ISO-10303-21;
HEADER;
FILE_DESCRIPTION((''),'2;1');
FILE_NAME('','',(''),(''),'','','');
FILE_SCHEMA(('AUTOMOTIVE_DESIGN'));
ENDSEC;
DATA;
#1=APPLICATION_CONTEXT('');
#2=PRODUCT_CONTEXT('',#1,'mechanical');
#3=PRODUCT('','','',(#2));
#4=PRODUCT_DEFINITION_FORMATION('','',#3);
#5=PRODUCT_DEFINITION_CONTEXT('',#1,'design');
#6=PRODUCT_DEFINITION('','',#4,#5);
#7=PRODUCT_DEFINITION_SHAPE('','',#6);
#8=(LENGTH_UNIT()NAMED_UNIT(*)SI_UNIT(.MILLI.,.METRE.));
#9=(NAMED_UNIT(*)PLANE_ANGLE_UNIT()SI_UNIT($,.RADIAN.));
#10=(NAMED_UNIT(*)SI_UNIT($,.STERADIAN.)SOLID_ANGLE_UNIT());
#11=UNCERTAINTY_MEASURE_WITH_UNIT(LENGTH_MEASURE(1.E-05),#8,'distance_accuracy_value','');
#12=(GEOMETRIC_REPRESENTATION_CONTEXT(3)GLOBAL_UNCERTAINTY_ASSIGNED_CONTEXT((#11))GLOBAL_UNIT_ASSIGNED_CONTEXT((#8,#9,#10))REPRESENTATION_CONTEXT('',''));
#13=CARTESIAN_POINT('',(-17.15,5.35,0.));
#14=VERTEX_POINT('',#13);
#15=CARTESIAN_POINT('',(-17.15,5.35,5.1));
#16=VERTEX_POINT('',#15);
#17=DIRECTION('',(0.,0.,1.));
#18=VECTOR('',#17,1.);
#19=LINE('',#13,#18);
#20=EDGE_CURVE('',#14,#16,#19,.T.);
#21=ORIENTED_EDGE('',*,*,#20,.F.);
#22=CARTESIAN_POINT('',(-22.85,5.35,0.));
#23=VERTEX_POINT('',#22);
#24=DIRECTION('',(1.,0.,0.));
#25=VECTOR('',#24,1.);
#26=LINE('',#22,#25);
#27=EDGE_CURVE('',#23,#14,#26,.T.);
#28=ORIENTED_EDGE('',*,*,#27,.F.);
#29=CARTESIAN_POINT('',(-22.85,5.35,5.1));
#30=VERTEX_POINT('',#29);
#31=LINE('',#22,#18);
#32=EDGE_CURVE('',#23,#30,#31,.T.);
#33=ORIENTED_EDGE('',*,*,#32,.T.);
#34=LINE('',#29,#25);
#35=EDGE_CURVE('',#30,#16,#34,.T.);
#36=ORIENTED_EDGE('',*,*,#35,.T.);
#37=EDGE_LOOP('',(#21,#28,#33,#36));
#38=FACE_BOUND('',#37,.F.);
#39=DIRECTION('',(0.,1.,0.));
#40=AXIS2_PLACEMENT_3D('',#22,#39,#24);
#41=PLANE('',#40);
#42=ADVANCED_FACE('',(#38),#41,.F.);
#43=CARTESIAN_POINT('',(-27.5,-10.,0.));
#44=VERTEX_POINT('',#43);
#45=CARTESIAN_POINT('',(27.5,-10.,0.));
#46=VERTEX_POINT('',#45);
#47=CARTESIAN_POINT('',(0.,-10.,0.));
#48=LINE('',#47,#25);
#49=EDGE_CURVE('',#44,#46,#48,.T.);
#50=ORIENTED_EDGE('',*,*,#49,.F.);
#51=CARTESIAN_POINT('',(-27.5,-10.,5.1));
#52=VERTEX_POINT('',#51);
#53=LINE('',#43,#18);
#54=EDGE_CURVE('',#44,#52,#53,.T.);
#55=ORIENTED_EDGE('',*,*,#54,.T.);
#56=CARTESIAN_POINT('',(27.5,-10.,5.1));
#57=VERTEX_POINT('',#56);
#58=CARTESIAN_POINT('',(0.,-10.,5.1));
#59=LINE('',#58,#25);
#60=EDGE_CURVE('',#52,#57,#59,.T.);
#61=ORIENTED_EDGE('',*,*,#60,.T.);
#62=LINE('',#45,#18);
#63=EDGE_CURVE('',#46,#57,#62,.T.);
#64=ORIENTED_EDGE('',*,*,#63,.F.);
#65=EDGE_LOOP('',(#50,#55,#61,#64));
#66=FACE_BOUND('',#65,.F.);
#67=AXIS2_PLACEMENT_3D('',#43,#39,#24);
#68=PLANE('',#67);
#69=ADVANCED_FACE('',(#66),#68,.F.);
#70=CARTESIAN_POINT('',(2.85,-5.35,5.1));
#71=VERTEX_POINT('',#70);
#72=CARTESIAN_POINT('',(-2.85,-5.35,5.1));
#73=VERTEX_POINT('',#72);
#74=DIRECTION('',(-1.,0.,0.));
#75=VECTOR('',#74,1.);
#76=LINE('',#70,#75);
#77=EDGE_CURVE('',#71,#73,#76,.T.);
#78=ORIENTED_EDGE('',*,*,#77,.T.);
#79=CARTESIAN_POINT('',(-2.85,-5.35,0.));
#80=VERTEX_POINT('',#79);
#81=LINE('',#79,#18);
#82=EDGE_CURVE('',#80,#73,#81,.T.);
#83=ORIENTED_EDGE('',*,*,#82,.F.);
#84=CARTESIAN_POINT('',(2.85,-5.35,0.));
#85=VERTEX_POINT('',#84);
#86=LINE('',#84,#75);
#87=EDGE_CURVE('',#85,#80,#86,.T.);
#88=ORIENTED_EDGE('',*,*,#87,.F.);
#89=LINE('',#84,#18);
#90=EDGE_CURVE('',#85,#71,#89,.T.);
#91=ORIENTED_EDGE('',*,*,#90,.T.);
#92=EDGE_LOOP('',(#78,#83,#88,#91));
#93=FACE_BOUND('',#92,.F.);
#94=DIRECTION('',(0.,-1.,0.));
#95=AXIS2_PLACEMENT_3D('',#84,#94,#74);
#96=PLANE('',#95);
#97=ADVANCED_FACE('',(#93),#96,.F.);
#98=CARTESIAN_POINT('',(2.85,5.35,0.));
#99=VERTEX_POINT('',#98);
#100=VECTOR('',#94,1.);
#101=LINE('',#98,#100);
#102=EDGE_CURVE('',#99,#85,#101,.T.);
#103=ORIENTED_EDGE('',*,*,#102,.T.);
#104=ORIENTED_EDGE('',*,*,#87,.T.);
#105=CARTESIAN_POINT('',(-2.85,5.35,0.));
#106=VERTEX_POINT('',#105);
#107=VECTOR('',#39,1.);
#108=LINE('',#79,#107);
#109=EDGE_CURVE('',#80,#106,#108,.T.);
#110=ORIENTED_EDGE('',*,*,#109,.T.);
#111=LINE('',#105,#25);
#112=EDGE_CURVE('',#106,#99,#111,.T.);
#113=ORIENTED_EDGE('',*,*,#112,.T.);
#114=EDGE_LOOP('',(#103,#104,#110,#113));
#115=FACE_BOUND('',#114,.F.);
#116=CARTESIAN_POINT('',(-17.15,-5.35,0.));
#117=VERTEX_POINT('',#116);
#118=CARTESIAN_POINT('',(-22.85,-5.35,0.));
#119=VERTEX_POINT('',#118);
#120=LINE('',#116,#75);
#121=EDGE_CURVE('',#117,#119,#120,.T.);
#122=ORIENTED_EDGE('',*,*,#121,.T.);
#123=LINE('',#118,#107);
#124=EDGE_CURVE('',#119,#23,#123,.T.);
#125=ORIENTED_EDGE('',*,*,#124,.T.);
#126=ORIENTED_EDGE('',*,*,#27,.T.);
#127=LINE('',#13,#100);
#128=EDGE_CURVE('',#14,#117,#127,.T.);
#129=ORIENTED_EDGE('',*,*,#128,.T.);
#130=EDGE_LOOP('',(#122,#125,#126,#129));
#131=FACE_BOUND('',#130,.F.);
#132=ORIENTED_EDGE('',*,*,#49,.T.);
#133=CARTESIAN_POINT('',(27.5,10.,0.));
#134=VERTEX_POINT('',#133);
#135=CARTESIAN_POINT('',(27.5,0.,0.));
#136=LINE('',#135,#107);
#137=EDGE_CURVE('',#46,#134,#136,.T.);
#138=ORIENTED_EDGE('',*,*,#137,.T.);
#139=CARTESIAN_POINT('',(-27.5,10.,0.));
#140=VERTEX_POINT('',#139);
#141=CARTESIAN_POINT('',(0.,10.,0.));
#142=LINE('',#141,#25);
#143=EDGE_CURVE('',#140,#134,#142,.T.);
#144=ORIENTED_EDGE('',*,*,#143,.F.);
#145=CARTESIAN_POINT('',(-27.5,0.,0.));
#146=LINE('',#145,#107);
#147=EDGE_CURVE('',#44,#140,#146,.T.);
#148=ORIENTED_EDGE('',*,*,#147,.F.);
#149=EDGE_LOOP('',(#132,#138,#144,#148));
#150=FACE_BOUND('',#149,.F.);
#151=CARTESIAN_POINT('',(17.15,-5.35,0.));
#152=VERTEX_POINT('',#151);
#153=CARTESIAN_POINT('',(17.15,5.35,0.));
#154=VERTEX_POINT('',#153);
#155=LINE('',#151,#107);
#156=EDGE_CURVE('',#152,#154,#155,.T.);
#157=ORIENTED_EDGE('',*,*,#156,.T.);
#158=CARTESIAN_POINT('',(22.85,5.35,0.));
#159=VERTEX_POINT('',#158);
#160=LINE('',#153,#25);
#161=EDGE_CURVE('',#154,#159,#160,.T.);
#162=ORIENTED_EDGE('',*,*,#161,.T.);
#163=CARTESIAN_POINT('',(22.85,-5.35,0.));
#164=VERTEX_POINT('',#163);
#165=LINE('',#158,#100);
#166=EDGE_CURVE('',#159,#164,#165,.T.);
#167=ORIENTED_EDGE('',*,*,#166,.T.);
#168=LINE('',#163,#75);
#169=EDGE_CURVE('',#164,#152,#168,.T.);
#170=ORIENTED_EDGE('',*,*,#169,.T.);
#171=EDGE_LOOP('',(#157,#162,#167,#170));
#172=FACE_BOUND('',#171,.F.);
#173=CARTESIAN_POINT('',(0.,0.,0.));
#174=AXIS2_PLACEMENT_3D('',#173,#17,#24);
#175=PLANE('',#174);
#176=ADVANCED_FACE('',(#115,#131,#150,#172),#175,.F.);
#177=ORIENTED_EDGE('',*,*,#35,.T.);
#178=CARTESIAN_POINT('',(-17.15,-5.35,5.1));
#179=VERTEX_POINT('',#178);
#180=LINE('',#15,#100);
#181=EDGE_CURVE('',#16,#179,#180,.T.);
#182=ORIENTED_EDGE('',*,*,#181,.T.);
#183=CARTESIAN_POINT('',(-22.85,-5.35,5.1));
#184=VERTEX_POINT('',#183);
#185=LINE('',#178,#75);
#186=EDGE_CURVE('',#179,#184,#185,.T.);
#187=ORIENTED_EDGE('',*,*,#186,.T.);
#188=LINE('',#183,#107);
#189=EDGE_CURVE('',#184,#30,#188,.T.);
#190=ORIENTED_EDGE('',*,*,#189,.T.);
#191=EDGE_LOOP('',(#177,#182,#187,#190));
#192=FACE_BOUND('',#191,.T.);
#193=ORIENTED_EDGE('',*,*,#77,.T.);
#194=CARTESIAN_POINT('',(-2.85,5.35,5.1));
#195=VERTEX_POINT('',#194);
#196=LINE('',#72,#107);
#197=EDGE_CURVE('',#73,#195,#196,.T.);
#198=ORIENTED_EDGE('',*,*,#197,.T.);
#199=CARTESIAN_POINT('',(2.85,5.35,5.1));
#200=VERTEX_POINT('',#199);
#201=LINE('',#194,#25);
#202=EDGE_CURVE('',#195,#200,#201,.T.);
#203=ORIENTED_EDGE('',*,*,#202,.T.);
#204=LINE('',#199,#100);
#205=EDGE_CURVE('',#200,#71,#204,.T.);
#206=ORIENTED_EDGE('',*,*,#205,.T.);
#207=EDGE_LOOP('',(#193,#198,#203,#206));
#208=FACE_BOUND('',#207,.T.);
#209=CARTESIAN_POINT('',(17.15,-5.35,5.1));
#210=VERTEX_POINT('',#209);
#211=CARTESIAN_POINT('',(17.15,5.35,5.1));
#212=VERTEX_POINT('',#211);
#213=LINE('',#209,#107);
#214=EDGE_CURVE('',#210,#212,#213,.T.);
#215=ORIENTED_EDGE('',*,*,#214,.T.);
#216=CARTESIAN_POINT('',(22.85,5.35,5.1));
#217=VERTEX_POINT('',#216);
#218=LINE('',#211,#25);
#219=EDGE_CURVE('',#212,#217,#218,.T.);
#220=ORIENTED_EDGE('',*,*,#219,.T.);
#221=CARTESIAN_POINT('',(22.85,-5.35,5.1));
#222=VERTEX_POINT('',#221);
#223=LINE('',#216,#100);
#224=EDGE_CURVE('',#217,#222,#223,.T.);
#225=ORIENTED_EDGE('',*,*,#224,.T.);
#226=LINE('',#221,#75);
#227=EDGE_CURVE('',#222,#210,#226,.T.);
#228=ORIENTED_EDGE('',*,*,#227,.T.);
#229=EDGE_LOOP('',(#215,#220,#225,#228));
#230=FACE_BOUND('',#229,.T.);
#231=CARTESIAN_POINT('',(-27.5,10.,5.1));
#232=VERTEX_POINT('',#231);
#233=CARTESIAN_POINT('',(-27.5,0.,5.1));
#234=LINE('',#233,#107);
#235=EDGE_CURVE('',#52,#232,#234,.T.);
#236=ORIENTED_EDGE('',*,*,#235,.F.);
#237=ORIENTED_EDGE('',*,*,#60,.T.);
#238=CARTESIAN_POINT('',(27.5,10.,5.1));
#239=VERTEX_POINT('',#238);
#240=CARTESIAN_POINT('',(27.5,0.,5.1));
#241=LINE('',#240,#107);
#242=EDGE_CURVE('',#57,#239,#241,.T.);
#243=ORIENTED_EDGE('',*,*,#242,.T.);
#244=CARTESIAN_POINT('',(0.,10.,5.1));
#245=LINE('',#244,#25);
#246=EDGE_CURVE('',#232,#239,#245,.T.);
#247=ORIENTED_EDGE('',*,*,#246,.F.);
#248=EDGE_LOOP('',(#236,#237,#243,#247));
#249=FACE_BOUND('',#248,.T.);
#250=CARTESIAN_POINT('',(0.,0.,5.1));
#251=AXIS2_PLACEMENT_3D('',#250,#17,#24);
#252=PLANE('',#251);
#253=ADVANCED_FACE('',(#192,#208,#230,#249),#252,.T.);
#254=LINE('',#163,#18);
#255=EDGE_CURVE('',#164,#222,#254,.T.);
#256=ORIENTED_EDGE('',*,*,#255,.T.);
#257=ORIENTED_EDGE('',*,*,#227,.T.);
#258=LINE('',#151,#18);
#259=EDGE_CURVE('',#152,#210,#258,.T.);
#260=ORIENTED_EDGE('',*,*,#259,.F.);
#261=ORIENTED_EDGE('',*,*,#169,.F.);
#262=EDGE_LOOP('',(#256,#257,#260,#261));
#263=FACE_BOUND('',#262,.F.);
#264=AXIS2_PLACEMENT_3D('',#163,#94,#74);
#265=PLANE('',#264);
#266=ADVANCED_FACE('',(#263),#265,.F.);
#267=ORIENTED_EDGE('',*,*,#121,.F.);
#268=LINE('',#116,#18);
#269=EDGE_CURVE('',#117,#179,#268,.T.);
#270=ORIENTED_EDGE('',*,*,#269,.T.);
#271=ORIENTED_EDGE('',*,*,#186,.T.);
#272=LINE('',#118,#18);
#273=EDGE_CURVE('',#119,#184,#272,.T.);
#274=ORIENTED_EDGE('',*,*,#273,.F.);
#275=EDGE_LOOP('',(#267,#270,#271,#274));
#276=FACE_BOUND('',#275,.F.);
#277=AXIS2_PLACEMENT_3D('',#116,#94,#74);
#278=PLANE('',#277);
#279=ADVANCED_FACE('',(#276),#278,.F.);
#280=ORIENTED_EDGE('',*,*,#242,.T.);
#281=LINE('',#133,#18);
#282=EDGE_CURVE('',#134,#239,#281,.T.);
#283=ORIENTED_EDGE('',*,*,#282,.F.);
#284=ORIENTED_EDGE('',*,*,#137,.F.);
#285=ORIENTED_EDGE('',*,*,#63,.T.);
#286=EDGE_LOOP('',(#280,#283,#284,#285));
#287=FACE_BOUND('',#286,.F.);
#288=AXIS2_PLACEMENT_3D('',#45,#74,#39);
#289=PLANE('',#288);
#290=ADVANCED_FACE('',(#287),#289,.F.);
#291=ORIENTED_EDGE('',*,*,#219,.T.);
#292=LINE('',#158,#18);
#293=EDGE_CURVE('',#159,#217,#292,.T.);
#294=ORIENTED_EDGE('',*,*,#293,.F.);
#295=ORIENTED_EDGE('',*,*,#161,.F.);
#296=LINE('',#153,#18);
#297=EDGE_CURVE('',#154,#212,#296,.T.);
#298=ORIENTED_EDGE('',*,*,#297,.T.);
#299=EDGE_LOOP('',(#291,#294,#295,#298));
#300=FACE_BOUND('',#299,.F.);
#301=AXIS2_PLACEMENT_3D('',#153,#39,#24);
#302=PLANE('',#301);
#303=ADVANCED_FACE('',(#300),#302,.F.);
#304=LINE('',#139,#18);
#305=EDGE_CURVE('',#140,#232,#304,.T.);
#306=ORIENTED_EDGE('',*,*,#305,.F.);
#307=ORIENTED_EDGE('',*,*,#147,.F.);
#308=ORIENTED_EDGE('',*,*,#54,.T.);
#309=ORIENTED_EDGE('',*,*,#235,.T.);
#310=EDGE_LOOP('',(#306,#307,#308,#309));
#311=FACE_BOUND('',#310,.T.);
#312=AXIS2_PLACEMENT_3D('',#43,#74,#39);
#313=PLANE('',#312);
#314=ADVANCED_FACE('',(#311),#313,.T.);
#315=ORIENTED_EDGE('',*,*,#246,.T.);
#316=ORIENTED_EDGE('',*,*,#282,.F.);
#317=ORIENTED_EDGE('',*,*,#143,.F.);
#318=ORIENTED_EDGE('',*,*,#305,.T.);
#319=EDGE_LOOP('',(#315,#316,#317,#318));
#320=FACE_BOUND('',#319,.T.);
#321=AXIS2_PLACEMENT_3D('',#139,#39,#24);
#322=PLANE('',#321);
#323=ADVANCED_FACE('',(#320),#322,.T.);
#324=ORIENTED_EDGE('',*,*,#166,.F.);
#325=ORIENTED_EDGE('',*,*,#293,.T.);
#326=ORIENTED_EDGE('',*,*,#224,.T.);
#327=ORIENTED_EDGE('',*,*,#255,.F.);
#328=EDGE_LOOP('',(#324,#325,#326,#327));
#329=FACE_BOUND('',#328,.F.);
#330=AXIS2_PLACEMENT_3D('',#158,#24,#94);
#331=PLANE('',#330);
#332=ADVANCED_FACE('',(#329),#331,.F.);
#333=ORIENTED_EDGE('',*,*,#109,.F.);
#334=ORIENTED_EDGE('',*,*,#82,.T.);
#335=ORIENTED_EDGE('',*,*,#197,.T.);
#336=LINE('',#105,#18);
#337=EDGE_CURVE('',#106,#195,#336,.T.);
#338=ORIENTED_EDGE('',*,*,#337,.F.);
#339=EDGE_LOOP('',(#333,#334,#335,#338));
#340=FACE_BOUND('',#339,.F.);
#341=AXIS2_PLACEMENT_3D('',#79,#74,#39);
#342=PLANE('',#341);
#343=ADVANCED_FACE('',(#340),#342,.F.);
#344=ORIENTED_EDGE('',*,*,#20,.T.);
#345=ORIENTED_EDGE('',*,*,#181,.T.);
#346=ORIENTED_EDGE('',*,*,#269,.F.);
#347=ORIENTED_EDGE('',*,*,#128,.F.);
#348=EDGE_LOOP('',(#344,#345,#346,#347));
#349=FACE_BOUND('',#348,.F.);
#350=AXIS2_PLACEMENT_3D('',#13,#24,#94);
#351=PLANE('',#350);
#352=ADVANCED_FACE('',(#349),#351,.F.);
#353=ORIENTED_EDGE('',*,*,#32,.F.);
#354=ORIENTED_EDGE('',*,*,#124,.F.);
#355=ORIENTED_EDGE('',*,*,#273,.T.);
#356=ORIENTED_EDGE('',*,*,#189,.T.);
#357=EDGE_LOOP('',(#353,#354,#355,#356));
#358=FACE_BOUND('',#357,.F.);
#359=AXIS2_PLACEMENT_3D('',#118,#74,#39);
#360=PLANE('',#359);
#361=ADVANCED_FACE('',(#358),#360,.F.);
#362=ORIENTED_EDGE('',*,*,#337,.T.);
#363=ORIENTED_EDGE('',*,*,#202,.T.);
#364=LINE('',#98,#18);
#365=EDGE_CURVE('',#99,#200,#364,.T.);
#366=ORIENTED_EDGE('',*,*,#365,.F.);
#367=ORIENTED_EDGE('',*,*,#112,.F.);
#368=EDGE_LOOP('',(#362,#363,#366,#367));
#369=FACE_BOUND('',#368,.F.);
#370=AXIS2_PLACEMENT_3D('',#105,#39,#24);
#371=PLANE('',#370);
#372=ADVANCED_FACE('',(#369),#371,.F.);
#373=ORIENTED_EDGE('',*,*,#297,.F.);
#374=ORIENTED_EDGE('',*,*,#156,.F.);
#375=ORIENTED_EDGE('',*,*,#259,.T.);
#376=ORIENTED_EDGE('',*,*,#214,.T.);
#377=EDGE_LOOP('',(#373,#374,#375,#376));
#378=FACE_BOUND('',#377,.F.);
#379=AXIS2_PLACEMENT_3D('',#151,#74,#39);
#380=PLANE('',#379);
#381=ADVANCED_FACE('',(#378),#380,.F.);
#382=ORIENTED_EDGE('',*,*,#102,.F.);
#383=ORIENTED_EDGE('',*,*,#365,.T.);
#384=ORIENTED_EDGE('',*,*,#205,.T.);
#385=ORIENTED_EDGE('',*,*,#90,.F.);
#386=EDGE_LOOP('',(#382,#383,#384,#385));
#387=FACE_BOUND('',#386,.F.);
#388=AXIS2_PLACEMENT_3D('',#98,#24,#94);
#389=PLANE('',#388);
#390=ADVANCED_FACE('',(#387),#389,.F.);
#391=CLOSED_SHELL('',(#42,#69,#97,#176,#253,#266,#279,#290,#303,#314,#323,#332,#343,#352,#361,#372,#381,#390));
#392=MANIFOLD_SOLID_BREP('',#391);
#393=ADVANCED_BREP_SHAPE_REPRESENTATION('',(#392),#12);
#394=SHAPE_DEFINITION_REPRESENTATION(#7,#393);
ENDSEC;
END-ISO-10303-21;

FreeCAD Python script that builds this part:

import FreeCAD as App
import Part
import Sketcher
from FreeCAD import Vector
Q = App.Units.Quantity

doc = App.newDocument("Part")
params = doc.addObject("Spreadsheet::Sheet", "Params")
for row, (alias, value) in enumerate([
    ("sketch1_width", "55 mm"),
    ("sketch1_height", "20 mm"),
    ("sketch1_width2", "5.7 mm"),
    ("sketch1_height2", "10.7 mm"),
    ("pad1_length", "5.1 mm"),
], start=1):
    params.set(f"A{row}", alias)
    params.set(f"B{row}", "=" + value)
    params.setAlias(f"B{row}", alias)

body = doc.addObject("PartDesign::Body", "Body")

# Sketch on XY plane
sketch1 = doc.addObject("Sketcher::SketchObject", "Sketch")
body.addObject(sketch1)
sketch1.AttachmentSupport = (doc.XY_Plane, [""])
sketch1.MapMode = "FlatFace"
sketch1.addGeometry(Part.LineSegment(Vector(-28, 10, 0), Vector(-28, -10, 0)), False)
sketch1.addGeometry(Part.LineSegment(Vector(-28, -10, 0), Vector(28, -10, 0)), False)
sketch1.addGeometry(Part.LineSegment(Vector(28, -10, 0), Vector(28, 10, 0)), False)
sketch1.addGeometry(Part.LineSegment(Vector(28, 10, 0), Vector(-28, 10, 0)), False)
sketch1.addGeometry(Part.LineSegment(Vector(-23, 5, 0), Vector(-17, 5, 0)), False)
sketch1.addGeometry(Part.LineSegment(Vector(-17, 5, 0), Vector(-17, -5, 0)), False)
sketch1.addGeometry(Part.LineSegment(Vector(-17, -5, 0), Vector(-23, -5, 0)), False)
sketch1.addGeometry(Part.LineSegment(Vector(-23, -5, 0), Vector(-23, 5, 0)), False)
sketch1.addGeometry(Part.LineSegment(Vector(-3, -5, 0), Vector(-3, 5, 0)), False)
sketch1.addGeometry(Part.LineSegment(Vector(-3, 5, 0), Vector(3, 5, 0)), False)
sketch1.addGeometry(Part.LineSegment(Vector(3, 5, 0), Vector(3, -5, 0)), False)
sketch1.addGeometry(Part.LineSegment(Vector(3, -5, 0), Vector(-3, -5, 0)), False)
sketch1.addGeometry(Part.LineSegment(Vector(17, 5, 0), Vector(23, 5, 0)), False)
sketch1.addGeometry(Part.LineSegment(Vector(23, 5, 0), Vector(23, -5, 0)), False)
sketch1.addGeometry(Part.LineSegment(Vector(23, -5, 0), Vector(17, -5, 0)), False)
sketch1.addGeometry(Part.LineSegment(Vector(17, -5, 0), Vector(17, 5, 0)), False)
sketch1.addConstraint(Sketcher.Constraint("Coincident", 0, 2, 1, 1))
sketch1.addConstraint(Sketcher.Constraint("Coincident", 1, 2, 2, 1))
sketch1.addConstraint(Sketcher.Constraint("Coincident", 2, 2, 3, 1))
sketch1.addConstraint(Sketcher.Constraint("Coincident", 3, 2, 0, 1))
sketch1.addConstraint(Sketcher.Constraint("Coincident", 4, 2, 5, 1))
sketch1.addConstraint(Sketcher.Constraint("Coincident", 5, 2, 6, 1))
sketch1.addConstraint(Sketcher.Constraint("Coincident", 6, 2, 7, 1))
sketch1.addConstraint(Sketcher.Constraint("Coincident", 7, 2, 4, 1))
sketch1.addConstraint(Sketcher.Constraint("Coincident", 8, 2, 9, 1))
sketch1.addConstraint(Sketcher.Constraint("Coincident", 9, 2, 10, 1))
sketch1.addConstraint(Sketcher.Constraint("Coincident", 10, 2, 11, 1))
sketch1.addConstraint(Sketcher.Constraint("Coincident", 11, 2, 8, 1))
sketch1.addConstraint(Sketcher.Constraint("Coincident", 12, 2, 13, 1))
sketch1.addConstraint(Sketcher.Constraint("Coincident", 13, 2, 14, 1))
sketch1.addConstraint(Sketcher.Constraint("Coincident", 14, 2, 15, 1))
sketch1.addConstraint(Sketcher.Constraint("Coincident", 15, 2, 12, 1))
sketch1.addConstraint(Sketcher.Constraint("Vertical", 0))
sketch1.addConstraint(Sketcher.Constraint("Horizontal", 1))
sketch1.addConstraint(Sketcher.Constraint("Vertical", 2))
sketch1.addConstraint(Sketcher.Constraint("Horizontal", 3))
sketch1.addConstraint(Sketcher.Constraint("Horizontal", 4))
sketch1.addConstraint(Sketcher.Constraint("Vertical", 5))
sketch1.addConstraint(Sketcher.Constraint("Horizontal", 6))
sketch1.addConstraint(Sketcher.Constraint("Vertical", 7))
sketch1.addConstraint(Sketcher.Constraint("Vertical", 8))
sketch1.addConstraint(Sketcher.Constraint("Horizontal", 9))
sketch1.addConstraint(Sketcher.Constraint("Vertical", 10))
sketch1.addConstraint(Sketcher.Constraint("Horizontal", 11))
sketch1.addConstraint(Sketcher.Constraint("Horizontal", 12))
sketch1.addConstraint(Sketcher.Constraint("Vertical", 13))
sketch1.addConstraint(Sketcher.Constraint("Horizontal", 14))
sketch1.addConstraint(Sketcher.Constraint("Vertical", 15))
sketch1.addConstraint(Sketcher.Constraint("Symmetric", 0, 2, 2, 2, -1, 1))
sketch1.addConstraint(Sketcher.Constraint("Symmetric", 8, 2, 10, 2, -1, 1))
sketch1.addConstraint(Sketcher.Constraint("Symmetric", 6, 2, 12, 2, -1, 1))
sketch1.addConstraint(Sketcher.Constraint("Symmetric", 4, 2, 14, 2, -1, 1))
sketch1.addConstraint(Sketcher.Constraint("Horizontal", 7, 2, 8, 2))
sketch1.addConstraint(Sketcher.Constraint("Horizontal", 6, 2, 10, 2))
sketch1.addConstraint(Sketcher.Constraint("Equal", 6, 9))
sketch1.addConstraint(Sketcher.Constraint("DistanceX", 1, 1, 1, 2, Q("55 mm")))
sketch1.addConstraint(Sketcher.Constraint("DistanceY", 0, 2, 0, 1, Q("20 mm")))
sketch1.addConstraint(Sketcher.Constraint("DistanceX", 4, 1, 4, 2, Q("5.7 mm")))
sketch1.addConstraint(Sketcher.Constraint("DistanceY", 5, 2, 5, 1, Q("10.7 mm")))
sketch1.addConstraint(Sketcher.Constraint("DistanceX", 7, 2, 8, 2, Q("20 mm")))
sketch1.setExpression("Constraints[39]", "Params.sketch1_width")
sketch1.setExpression("Constraints[40]", "Params.sketch1_height")
sketch1.setExpression("Constraints[41]", "Params.sketch1_width2")
sketch1.setExpression("Constraints[42]", "Params.sketch1_height2")
pad1 = doc.addObject("PartDesign::Pad", "Pad")
body.addObject(pad1)
pad1.Profile = sketch1
pad1.setExpression("Length", "Params.pad1_length")

doc.recompute()
